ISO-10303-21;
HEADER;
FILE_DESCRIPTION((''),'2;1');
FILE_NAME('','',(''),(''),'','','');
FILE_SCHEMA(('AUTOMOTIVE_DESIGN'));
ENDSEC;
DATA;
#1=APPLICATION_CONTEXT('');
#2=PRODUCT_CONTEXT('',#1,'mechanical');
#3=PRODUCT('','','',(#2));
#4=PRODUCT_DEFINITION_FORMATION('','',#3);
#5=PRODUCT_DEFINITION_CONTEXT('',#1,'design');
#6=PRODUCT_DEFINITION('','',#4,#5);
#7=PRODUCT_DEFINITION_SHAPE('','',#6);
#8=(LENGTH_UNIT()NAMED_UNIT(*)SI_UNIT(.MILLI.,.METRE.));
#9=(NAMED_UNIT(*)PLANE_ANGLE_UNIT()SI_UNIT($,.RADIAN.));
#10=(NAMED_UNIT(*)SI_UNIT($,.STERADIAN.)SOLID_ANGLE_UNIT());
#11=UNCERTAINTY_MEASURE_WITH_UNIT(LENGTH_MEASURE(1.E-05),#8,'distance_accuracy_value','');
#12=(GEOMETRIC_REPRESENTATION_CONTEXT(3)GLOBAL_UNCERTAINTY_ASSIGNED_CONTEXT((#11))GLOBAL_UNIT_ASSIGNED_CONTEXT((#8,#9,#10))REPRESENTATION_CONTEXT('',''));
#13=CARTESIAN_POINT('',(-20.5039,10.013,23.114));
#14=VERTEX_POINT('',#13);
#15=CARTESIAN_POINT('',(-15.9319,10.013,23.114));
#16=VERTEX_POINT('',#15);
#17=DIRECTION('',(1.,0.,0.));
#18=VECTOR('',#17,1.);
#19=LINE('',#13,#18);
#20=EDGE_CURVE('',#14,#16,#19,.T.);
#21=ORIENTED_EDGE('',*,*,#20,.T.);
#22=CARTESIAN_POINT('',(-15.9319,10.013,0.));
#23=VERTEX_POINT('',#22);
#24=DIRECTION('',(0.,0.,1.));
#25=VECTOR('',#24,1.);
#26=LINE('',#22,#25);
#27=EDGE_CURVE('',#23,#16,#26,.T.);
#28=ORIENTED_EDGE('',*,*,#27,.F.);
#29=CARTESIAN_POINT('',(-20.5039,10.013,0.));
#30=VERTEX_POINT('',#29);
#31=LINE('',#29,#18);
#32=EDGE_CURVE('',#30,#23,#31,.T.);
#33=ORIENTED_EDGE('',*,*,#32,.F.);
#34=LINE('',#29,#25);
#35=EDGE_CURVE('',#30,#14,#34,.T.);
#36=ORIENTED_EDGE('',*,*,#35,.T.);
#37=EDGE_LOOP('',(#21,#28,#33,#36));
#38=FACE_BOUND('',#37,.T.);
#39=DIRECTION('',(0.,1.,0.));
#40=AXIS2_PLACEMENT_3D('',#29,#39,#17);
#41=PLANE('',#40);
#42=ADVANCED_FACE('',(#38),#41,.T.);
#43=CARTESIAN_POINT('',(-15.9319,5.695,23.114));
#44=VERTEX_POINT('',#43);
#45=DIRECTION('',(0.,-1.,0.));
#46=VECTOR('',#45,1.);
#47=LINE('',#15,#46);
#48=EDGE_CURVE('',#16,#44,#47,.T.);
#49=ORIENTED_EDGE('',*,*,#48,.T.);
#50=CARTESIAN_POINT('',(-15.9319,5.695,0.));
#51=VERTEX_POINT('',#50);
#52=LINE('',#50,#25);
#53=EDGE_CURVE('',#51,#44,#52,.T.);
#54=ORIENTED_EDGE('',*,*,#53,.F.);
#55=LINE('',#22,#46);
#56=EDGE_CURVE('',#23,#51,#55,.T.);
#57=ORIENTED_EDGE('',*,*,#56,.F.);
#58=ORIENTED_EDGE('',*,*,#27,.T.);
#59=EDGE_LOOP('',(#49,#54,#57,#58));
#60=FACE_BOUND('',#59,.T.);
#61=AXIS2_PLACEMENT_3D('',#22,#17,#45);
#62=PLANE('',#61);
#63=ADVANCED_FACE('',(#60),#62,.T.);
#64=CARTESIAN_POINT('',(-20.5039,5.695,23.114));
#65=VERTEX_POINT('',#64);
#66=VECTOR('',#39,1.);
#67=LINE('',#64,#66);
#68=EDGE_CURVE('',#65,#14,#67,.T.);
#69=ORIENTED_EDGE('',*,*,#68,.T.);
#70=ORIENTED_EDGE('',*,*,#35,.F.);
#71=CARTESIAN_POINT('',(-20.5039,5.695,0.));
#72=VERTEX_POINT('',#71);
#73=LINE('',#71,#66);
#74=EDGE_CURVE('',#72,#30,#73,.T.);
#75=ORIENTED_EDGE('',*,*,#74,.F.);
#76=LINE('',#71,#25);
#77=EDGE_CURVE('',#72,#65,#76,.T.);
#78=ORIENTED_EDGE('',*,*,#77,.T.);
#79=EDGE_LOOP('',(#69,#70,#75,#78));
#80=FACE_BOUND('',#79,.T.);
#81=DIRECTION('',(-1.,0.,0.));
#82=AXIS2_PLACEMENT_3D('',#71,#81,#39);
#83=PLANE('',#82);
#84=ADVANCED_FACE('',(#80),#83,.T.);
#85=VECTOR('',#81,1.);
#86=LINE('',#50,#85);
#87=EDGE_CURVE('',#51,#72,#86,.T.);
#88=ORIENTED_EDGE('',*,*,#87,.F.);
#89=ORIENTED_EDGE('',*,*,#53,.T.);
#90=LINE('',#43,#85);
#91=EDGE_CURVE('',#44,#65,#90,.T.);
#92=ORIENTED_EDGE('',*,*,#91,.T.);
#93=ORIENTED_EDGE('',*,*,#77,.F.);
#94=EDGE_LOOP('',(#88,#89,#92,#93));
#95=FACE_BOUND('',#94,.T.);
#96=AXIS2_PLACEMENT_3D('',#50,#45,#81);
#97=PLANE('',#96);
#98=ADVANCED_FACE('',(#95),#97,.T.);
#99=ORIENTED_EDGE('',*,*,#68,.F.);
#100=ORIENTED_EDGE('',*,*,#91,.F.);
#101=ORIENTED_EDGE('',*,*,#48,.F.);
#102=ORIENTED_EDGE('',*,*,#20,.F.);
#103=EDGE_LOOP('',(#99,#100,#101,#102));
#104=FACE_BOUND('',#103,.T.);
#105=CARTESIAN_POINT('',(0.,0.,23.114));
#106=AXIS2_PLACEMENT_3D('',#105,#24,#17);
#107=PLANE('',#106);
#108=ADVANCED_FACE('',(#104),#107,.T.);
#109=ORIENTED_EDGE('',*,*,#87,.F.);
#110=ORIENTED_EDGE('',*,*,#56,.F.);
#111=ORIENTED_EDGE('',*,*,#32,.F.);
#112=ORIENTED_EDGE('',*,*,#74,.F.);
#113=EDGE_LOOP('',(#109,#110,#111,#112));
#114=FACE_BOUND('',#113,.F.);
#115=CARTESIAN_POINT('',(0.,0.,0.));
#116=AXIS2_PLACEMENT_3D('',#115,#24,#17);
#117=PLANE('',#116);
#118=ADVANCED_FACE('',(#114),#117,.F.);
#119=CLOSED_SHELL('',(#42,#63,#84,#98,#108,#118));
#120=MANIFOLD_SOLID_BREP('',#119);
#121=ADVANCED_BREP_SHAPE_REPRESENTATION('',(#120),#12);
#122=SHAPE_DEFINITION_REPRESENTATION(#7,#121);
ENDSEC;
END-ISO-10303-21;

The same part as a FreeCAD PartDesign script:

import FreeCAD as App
import Part
import Sketcher

V = App.Vector
Q = App.Units.Quantity

doc = App.newDocument("Part")
body = doc.addObject("PartDesign::Body", "Body")

sketch1 = doc.addObject("Sketcher::SketchObject", "Sketch")
body.addObject(sketch1)
sketch1.AttachmentSupport = (doc.XY_Plane, [""])
sketch1.MapMode = "FlatFace"
sketch1.addGeometry(Part.LineSegment(V(-15.9, 10, 0), V(-20.5, 10, 0)), False)
sketch1.addGeometry(Part.LineSegment(V(-20.5, 10, 0), V(-20.5, 5.7, 0)), False)
sketch1.addGeometry(Part.LineSegment(V(-20.5, 5.7, 0), V(-15.9, 5.7, 0)), False)
sketch1.addGeometry(Part.LineSegment(V(-15.9, 5.7, 0), V(-15.9, 10, 0)), False)
sketch1.addConstraint(Sketcher.Constraint("Coincident", 0, 2, 1, 1))
sketch1.addConstraint(Sketcher.Constraint("Coincident", 1, 2, 2, 1))
sketch1.addConstraint(Sketcher.Constraint("Coincident", 2, 2, 3, 1))
sketch1.addConstraint(Sketcher.Constraint("Coincident", 3, 2, 0, 1))
sketch1.addConstraint(Sketcher.Constraint("Horizontal", 0))
sketch1.addConstraint(Sketcher.Constraint("Vertical", 1))
sketch1.addConstraint(Sketcher.Constraint("Horizontal", 2))
sketch1.addConstraint(Sketcher.Constraint("Vertical", 3))
sketch1.addConstraint(Sketcher.Constraint("DistanceX", 0, 2, 0, 1, Q("0.18 in")))
sketch1.addConstraint(Sketcher.Constraint("DistanceY", 1, 2, 1, 1, Q("0.17 in")))
sketch1.addConstraint(Sketcher.Constraint("DistanceX", 0, 2, -1, 1, Q("20.504 mm")))
sketch1.addConstraint(Sketcher.Constraint("DistanceY", -1, 1, 0, 2, Q("10.013 mm")))
pad1 = doc.addObject("PartDesign::Pad", "Pad")
body.addObject(pad1)
pad1.Profile = sketch1
pad1.Length = Q("0.91 in")

doc.recompute()
